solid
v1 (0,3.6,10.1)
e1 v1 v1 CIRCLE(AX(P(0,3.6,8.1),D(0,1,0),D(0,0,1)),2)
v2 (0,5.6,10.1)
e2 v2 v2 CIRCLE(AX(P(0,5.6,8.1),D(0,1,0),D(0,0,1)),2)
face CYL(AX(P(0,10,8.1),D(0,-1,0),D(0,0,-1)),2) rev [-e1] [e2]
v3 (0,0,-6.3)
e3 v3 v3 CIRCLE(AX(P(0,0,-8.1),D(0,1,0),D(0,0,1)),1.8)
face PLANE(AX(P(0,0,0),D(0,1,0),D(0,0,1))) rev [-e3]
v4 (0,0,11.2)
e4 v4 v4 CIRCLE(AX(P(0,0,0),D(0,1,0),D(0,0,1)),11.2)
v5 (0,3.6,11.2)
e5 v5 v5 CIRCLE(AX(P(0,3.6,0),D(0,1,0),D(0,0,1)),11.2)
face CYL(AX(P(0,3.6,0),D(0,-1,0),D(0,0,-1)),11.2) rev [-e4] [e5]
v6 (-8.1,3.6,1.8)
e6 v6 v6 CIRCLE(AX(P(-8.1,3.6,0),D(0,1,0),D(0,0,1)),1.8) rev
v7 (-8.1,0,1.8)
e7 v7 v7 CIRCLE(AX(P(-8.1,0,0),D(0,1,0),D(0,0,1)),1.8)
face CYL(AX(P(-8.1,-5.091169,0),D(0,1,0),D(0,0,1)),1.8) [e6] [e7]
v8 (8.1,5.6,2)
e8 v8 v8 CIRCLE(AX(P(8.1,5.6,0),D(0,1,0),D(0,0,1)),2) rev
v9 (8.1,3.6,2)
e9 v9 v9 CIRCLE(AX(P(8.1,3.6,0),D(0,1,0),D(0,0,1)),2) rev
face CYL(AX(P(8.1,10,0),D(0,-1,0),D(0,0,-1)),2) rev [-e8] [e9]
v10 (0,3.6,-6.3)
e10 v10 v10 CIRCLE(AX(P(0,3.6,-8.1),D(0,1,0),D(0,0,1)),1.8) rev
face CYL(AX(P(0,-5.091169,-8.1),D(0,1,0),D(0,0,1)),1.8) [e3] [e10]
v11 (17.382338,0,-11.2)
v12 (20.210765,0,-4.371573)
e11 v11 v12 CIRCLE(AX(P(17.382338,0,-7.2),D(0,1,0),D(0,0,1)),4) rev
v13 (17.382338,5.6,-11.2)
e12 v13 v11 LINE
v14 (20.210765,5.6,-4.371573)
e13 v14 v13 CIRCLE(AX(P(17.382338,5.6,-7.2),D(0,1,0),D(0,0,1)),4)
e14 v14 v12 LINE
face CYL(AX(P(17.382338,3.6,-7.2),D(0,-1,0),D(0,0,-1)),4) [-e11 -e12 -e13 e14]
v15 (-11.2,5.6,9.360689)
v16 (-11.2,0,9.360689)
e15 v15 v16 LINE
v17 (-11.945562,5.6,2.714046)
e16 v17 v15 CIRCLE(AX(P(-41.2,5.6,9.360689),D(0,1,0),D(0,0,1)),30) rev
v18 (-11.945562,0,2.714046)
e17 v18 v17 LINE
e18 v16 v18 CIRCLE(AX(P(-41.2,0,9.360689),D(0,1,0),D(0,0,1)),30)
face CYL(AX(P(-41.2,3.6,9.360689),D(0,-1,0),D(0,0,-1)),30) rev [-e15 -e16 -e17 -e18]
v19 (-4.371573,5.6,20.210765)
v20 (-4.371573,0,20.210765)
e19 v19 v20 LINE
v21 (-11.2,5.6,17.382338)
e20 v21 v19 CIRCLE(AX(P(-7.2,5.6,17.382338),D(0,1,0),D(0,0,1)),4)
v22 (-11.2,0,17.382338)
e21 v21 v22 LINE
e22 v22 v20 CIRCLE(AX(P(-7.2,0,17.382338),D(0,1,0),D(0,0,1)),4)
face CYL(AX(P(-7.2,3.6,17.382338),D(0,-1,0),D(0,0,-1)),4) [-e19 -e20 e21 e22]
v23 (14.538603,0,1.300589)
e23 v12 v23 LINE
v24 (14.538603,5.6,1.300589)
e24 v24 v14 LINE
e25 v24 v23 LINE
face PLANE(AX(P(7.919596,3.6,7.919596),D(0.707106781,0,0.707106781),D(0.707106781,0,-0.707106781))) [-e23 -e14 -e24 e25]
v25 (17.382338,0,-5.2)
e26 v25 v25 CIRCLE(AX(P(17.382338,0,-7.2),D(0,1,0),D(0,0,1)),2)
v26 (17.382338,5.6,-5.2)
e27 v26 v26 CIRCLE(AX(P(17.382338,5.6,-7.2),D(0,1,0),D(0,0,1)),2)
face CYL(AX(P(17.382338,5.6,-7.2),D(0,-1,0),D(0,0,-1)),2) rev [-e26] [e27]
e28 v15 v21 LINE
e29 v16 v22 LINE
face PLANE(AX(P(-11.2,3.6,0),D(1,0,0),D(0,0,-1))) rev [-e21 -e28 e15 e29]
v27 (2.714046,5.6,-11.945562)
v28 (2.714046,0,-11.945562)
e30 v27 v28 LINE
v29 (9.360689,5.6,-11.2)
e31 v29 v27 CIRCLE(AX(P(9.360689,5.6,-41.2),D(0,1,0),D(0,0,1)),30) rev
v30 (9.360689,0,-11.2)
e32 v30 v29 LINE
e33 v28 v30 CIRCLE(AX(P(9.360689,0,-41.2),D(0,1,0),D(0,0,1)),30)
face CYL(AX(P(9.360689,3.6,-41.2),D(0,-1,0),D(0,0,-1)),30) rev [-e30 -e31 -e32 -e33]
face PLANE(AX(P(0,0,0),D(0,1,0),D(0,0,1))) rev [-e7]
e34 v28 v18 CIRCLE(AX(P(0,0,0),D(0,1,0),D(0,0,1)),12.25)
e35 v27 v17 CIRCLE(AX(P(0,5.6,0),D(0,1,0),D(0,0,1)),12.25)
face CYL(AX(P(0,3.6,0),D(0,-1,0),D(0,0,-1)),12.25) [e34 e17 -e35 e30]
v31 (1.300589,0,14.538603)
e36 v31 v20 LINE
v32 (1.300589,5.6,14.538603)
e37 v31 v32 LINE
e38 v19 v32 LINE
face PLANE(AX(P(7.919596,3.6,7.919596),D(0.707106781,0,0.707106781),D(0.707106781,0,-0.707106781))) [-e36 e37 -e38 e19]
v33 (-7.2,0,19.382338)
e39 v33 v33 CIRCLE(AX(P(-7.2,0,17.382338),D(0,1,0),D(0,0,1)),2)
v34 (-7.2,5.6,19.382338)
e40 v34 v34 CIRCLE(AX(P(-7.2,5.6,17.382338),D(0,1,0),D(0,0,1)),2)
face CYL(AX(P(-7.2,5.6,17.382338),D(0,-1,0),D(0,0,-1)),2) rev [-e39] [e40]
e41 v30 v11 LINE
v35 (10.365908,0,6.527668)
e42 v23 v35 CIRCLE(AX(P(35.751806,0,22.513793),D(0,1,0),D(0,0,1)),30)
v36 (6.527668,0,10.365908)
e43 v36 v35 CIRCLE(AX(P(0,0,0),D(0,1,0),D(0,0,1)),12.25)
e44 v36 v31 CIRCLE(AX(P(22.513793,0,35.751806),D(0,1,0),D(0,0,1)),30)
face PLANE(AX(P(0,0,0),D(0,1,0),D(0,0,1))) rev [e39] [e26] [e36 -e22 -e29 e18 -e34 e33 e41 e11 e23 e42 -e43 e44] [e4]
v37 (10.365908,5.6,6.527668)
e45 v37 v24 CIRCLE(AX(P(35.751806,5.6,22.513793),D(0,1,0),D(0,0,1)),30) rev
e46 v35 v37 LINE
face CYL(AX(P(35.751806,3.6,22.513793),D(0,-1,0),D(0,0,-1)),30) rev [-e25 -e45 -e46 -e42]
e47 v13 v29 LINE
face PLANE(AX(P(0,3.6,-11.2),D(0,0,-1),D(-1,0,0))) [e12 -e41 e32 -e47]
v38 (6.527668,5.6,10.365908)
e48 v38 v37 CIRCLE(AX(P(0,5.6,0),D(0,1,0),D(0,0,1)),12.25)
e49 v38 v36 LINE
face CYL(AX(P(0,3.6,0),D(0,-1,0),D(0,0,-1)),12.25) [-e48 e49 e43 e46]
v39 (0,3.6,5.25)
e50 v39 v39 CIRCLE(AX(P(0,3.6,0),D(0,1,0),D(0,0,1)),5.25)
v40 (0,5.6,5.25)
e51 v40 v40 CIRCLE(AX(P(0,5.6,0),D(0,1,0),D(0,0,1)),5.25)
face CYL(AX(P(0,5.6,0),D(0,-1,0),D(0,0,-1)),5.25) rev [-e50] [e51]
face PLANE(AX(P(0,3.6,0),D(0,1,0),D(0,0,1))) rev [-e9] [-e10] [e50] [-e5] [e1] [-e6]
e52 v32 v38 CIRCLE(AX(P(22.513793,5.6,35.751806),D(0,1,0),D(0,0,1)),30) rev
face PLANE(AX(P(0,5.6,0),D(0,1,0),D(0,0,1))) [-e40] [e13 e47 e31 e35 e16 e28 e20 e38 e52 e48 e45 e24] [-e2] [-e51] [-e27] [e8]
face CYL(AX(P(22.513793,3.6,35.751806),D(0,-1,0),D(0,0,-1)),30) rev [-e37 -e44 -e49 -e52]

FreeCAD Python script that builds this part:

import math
import FreeCAD as App
import Part
import Sketcher

V = App.Vector
Q = App.Units.Quantity


def edges_at(feature, points):
    """Names of the edges that pass closest to the given points."""
    edges = feature.Shape.Edges
    near = lambda p: min(range(len(edges)), key=lambda i: edges[i].distToShape(Part.Vertex(*p))[0])
    return sorted({f"Edge{near(p) + 1}" for p in points})

doc = App.newDocument("Part")
params = doc.addObject("Spreadsheet::Sheet", "Params")
for row, (alias, value) in enumerate([
    ("sketch1_radius", "4 mm"),
    ("sketch1_radius2", "11.2 mm"),
    ("sketch1_radius3", "12.25 mm"),
    ("pad1_length", "3.6 mm"),
    ("sketch2_radius", "4 mm"),
    ("sketch2_diameter", "10.5 mm"),
    ("sketch2_radius2", "12.25 mm"),
    ("pad2_length", "2 mm"),
    ("sketch3_diameter", "4 mm"),
    ("fillet_radius", "30 mm"),
    ("sketch4_diameter", "3.6 mm"),
    ("pad3_length", "3.6 mm"),
    ("sketch5_diameter", "4 mm"),
    ("pocket2_length", "10 mm"),
], start=1):
    params.set(f"A{row}", alias)
    params.set(f"B{row}", "=" + value)
    params.setAlias(f"B{row}", alias)

body = doc.addObject("PartDesign::Body", "Body")

# Sketch on XZ plane
sketch1 = body.newObject("Sketcher::SketchObject", "Sketch")
sketch1.AttachmentSupport = (doc.getObject("XZ_Plane"), [""])
sketch1.MapMode = "FlatFace"
sketch1.addGeometry(Part.ArcOfCircle(Part.Circle(V(-7.2, 17.4, 0), V(0, 0, 1), 4), math.radians(45), math.radians(180)), False)
sketch1.addGeometry(Part.LineSegment(V(-4.4, 20.2, 0), V(4.4, 11.4, 0)), False)
sketch1.addGeometry(Part.ArcOfCircle(Part.Circle(V(0, 0, 0), V(0, 0, 1), 12.2), math.radians(21), math.radians(69)), False)
sketch1.addGeometry(Part.LineSegment(V(11.4, 4.4, 0), V(20.2, -4.4, 0)), False)
sketch1.addGeometry(Part.ArcOfCircle(Part.Circle(V(17.4, -7.2, 0), V(0, 0, 1), 4), math.radians(-90), math.radians(45)), False)
sketch1.addGeometry(Part.LineSegment(V(17.4, -11.2, 0), V(5, -11.2, 0)), False)
sketch1.addGeometry(Part.ArcOfCircle(Part.Circle(V(0, 0, 0), V(0, 0, 1), 12.2), math.radians(156), math.radians(294)), False)
sketch1.addGeometry(Part.LineSegment(V(-11.2, 5, 0), V(-11.2, 17.4, 0)), False)
sketch1.addGeometry(Part.ArcOfCircle(Part.Circle(V(0, 0, 0), V(0, 0, 1), 11.2), math.radians(-90), math.radians(0)), False)
sketch1.addGeometry(Part.ArcOfCircle(Part.Circle(V(0, 0, 0), V(0, 0, 1), 11.2), math.radians(0), math.radians(45)), False)
sketch1.addGeometry(Part.ArcOfCircle(Part.Circle(V(0, 0, 0), V(0, 0, 1), 11.2), math.radians(45), math.radians(180)), False)
sketch1.addGeometry(Part.ArcOfCircle(Part.Circle(V(0, 0, 0), V(0, 0, 1), 11.2), math.radians(-180), math.radians(-90)), False)
sketch1.addConstraint(Sketcher.Constraint("Tangent", 0, 1, 1, 1))
sketch1.addConstraint(Sketcher.Constraint("Coincident", 1, 2, 2, 2))
sketch1.addConstraint(Sketcher.Constraint("Coincident", 2, 1, 3, 1))
sketch1.addConstraint(Sketcher.Constraint("Tangent", 3, 2, 4, 2))
sketch1.addConstraint(Sketcher.Constraint("Tangent", 4, 1, 5, 1))
sketch1.addConstraint(Sketcher.Constraint("Coincident", 5, 2, 6, 2))
sketch1.addConstraint(Sketcher.Constraint("Coincident", 6, 1, 7, 1))
sketch1.addConstraint(Sketcher.Constraint("Tangent", 7, 2, 0, 2))
sketch1.addConstraint(Sketcher.Constraint("Tangent", 8, 2, 9, 1))
sketch1.addConstraint(Sketcher.Constraint("Tangent", 9, 2, 10, 1))
sketch1.addConstraint(Sketcher.Constraint("Tangent", 10, 2, 11, 1))
sketch1.addConstraint(Sketcher.Constraint("Tangent", 11, 2, 8, 1))
sketch1.addConstraint(Sketcher.Constraint("Horizontal", 5))
sketch1.addConstraint(Sketcher.Constraint("Vertical", 7))
sketch1.addConstraint(Sketcher.Constraint("Coincident", 2, 3, -1, 1))
sketch1.addConstraint(Sketcher.Constraint("Coincident", 6, 3, -1, 1))
sketch1.addConstraint(Sketcher.Constraint("Coincident", 8, 3, -1, 1))
sketch1.addConstraint(Sketcher.Constraint("Equal", 0, 4))
sketch1.addConstraint(Sketcher.Constraint("Equal", 2, 6))
sketch1.addConstraint(Sketcher.Constraint("Equal", 8, 9))
sketch1.addConstraint(Sketcher.Constraint("PointOnObject", 8, 2, -1))
sketch1.addConstraint(Sketcher.Constraint("PointOnObject", 10, 2, -1))
sketch1.addConstraint(Sketcher.Constraint("PointOnObject", 11, 2, -2))
sketch1.addConstraint(Sketcher.Constraint("Parallel", 1, 3))
sketch1.addConstraint(Sketcher.Constraint("Horizontal", 5, 2, 11, 2))
sketch1.addConstraint(Sketcher.Constraint("Vertical", 7, 2, 10, 2))
sketch1.addConstraint(Sketcher.Constraint("Equal", 5, 7))
sketch1.addConstraint(Sketcher.Constraint("Equal", 1, 3))
sketch1.addConstraint(Sketcher.Constraint("Radius", 0, Q("4 mm")))
sketch1.addConstraint(Sketcher.Constraint("Radius", 8, Q("11.2 mm")))
sketch1.addConstraint(Sketcher.Constraint("Radius", 2, Q("12.25 mm")))
sketch1.addConstraint(Sketcher.Constraint("DistanceX", 5, 2, 5, 1, Q("12.420231 mm")))
sketch1.addConstraint(Sketcher.Constraint("DistanceX", 1, 2, 9, 2, Q("3.508739 mm")))
sketch1.setExpression("Constraints[28]", "Params.sketch1_radius")
sketch1.setExpression("Constraints[29]", "Params.sketch1_radius2")
sketch1.setExpression("Constraints[30]", "Params.sketch1_radius3")
pad1 = body.newObject("PartDesign::Pad", "Pad")
pad1.Profile = sketch1
pad1.setExpression("Length", "Params.pad1_length")
pad1.Reversed = True

# Sketch on XZ plane
sketch2 = body.newObject("Sketcher::SketchObject", "Sketch001")
sketch2.AttachmentSupport = (doc.getObject("XZ_Plane"), [""])
sketch2.MapMode = "FlatFace"
sketch2.AttachmentOffset = App.Placement(V(0, 0, -3.6), App.Rotation())
sketch2.addGeometry(Part.LineSegment(V(-4.4, 20.2, 0), V(4.4, 11.4, 0)), False)
sketch2.addGeometry(Part.ArcOfCircle(Part.Circle(V(0, 0, 0), V(0, 0, 1), 12.2), math.radians(21), math.radians(69)), False)
sketch2.addGeometry(Part.LineSegment(V(11.4, 4.4, 0), V(20.2, -4.4, 0)), False)
sketch2.addGeometry(Part.ArcOfCircle(Part.Circle(V(17.4, -7.2, 0), V(0, 0, 1), 4), math.radians(-90), math.radians(45)), False)
sketch2.addGeometry(Part.LineSegment(V(17.4, -11.2, 0), V(5, -11.2, 0)), False)
sketch2.addGeometry(Part.ArcOfCircle(Part.Circle(V(0, 0, 0), V(0, 0, 1), 12.2), math.radians(156), math.radians(294)), False)
sketch2.addGeometry(Part.LineSegment(V(-11.2, 5, 0), V(-11.2, 17.4, 0)), False)
sketch2.addGeometry(Part.ArcOfCircle(Part.Circle(V(-7.2, 17.4, 0), V(0, 0, 1), 4), math.radians(45), math.radians(180)), False)
sketch2.addGeometry(Part.Circle(V(0, 0, 0), V(0, 0, 1), 5.2), False)
sketch2.addConstraint(Sketcher.Constraint("Coincident", 0, 2, 1, 2))
sketch2.addConstraint(Sketcher.Constraint("Coincident", 1, 1, 2, 1))
sketch2.addConstraint(Sketcher.Constraint("Tangent", 2, 2, 3, 2))
sketch2.addConstraint(Sketcher.Constraint("Tangent", 3, 1, 4, 1))
sketch2.addConstraint(Sketcher.Constraint("Coincident", 4, 2, 5, 2))
sketch2.addConstraint(Sketcher.Constraint("Coincident", 5, 1, 6, 1))
sketch2.addConstraint(Sketcher.Constraint("Tangent", 6, 2, 7, 2))
sketch2.addConstraint(Sketcher.Constraint("Tangent", 7, 1, 0, 1))
sketch2.addConstraint(Sketcher.Constraint("Horizontal", 4))
sketch2.addConstraint(Sketcher.Constraint("Vertical", 6))
sketch2.addConstraint(Sketcher.Constraint("Coincident", 1, 3, -1, 1))
sketch2.addConstraint(Sketcher.Constraint("Coincident", 5, 3, -1, 1))
sketch2.addConstraint(Sketcher.Constraint("Coincident", 8, 3, -1, 1))
sketch2.addConstraint(Sketcher.Constraint("Equal", 1, 5))
sketch2.addConstraint(Sketcher.Constraint("Equal", 3, 7))
sketch2.addConstraint(Sketcher.Constraint("Parallel", 0, 2))
sketch2.addConstraint(Sketcher.Constraint("Equal", 4, 6))
sketch2.addConstraint(Sketcher.Constraint("Equal", 0, 2))
sketch2.addConstraint(Sketcher.Constraint("Radius", 3, Q("4 mm")))
sketch2.addConstraint(Sketcher.Constraint("Diameter", 8, Q("10.5 mm")))
sketch2.addConstraint(Sketcher.Constraint("Angle", 0, Q("-45 deg")))
sketch2.addConstraint(Sketcher.Constraint("Radius", 1, Q("12.25 mm")))
sketch2.addConstraint(Sketcher.Constraint("DistanceY", 3, 3, -1, 1, Q("7.2 mm")))
sketch2.addConstraint(Sketcher.Constraint("DistanceX", 4, 2, 4, 1, Q("12.420231 mm")))
sketch2.setExpression("Constraints[18]", "Params.sketch2_radius")
sketch2.setExpression("Constraints[19]", "Params.sketch2_diameter")
sketch2.setExpression("Constraints[21]", "Params.sketch2_radius2")
pad2 = body.newObject("PartDesign::Pad", "Pad001")
pad2.Profile = sketch2
pad2.setExpression("Length", "Params.pad2_length")
pad2.Reversed = True

# Sketch on XZ plane
sketch3 = body.newObject("Sketcher::SketchObject", "Sketch002")
sketch3.AttachmentSupport = (doc.getObject("XZ_Plane"), [""])
sketch3.MapMode = "FlatFace"
sketch3.addGeometry(Part.Circle(V(-7.2, 17.4, 0), V(0, 0, 1), 2), False)
sketch3.addGeometry(Part.Circle(V(17.4, -7.2, 0), V(0, 0, 1), 2), False)
sketch3.addConstraint(Sketcher.Constraint("Equal", 0, 1))
sketch3.addConstraint(Sketcher.Constraint("Diameter", 0, Q("4 mm")))
sketch3.addConstraint(Sketcher.Constraint("DistanceX", 0, 3, -1, 1, Q("7.2 mm")))
sketch3.addConstraint(Sketcher.Constraint("DistanceY", 1, 3, -1, 1, Q("7.2 mm")))
sketch3.addConstraint(Sketcher.Constraint("DistanceY", -1, 1, 0, 3, Q("17.382338 mm")))
sketch3.addConstraint(Sketcher.Constraint("DistanceX", -1, 1, 1, 3, Q("17.382338 mm")))
sketch3.setExpression("Constraints[1]", "Params.sketch3_diameter")
pocket1 = body.newObject("PartDesign::Pocket", "Pocket")
pocket1.Profile = sketch3
pocket1.Type = "ThroughAll"
doc.recompute()

fillet = body.newObject("PartDesign::Fillet", "Fillet")
fillet.Base = (pocket1, edges_at(pocket1, [
    (4.411, 2.8, 11.428),
    (-11.2, 2.8, 4.962),
    (4.962, 2.8, -11.2),
    (11.428, 2.8, 4.411),
]))
fillet.setExpression("Radius", "Params.fillet_radius")

# Sketch on XZ plane
sketch4 = body.newObject("Sketcher::SketchObject", "Sketch003")
sketch4.AttachmentSupport = (doc.getObject("XZ_Plane"), [""])
sketch4.MapMode = "FlatFace"
sketch4.AttachmentOffset = App.Placement(V(0, 0, -3.6), App.Rotation())
sketch4.addGeometry(Part.Circle(V(-8.1, 0, 0), V(0, 0, 1), 1.8), False)
sketch4.addGeometry(Part.Circle(V(8.1, 0, 0), V(0, 0, 1), 1.8), False)
sketch4.addGeometry(Part.Circle(V(0, -8.1, 0), V(0, 0, 1), 1.8), False)
sketch4.addGeometry(Part.Circle(V(0, 8.1, 0), V(0, 0, 1), 1.8), False)
sketch4.addConstraint(Sketcher.Constraint("Equal", 0, 1))
sketch4.addConstraint(Sketcher.Constraint("Equal", 1, 2))
sketch4.addConstraint(Sketcher.Constraint("Equal", 2, 3))
sketch4.addConstraint(Sketcher.Constraint("Symmetric", 0, 3, 1, 3, -1, 1))
sketch4.addConstraint(Sketcher.Constraint("Symmetric", 2, 3, 3, 3, -1, 1))
sketch4.addConstraint(Sketcher.Constraint("PointOnObject", 0, 3, -1))
sketch4.addConstraint(Sketcher.Constraint("PointOnObject", 2, 3, -2))
sketch4.addConstraint(Sketcher.Constraint("Diameter", 0, Q("3.6 mm")))
sketch4.addConstraint(Sketcher.Constraint("DistanceX", 0, 3, -1, 1, Q("8.1 mm")))
sketch4.addConstraint(Sketcher.Constraint("DistanceY", 2, 3, -1, 1, Q("8.1 mm")))
sketch4.setExpression("Constraints[7]", "Params.sketch4_diameter")
pad3 = body.newObject("PartDesign::Pad", "Pad002")
pad3.Profile = sketch4
pad3.setExpression("Length", "Params.pad3_length")

# Sketch on XZ plane
sketch5 = body.newObject("Sketcher::SketchObject", "Sketch004")
sketch5.AttachmentSupport = (doc.getObject("XZ_Plane"), [""])
sketch5.MapMode = "FlatFace"
sketch5.addGeometry(Part.Circle(V(0, 8.1, 0), V(0, 0, 1), 2), False)
sketch5.addConstraint(Sketcher.Constraint("PointOnObject", 0, 3, -2))
sketch5.addConstraint(Sketcher.Constraint("Diameter", 0, Q("4 mm")))
sketch5.addConstraint(Sketcher.Constraint("DistanceY", -1, 1, 0, 3, Q("8.1 mm")))
sketch5.setExpression("Constraints[1]", "Params.sketch5_diameter")
pocket2 = body.newObject("PartDesign::Pocket", "Pocket001")
pocket2.Profile = sketch5
pocket2.setExpression("Length", "Params.pocket2_length")
doc.recompute()

datumplane = body.newObject("PartDesign::Plane", "DatumPlane")
datumplane.Placement = App.Placement(V(0, 0, 0), App.Rotation(V(-0.707106781, 0, -0.707106781), V(0, -1, 0), V(-0.707106781, 0, 0.707106781), "ZXY"))
mirrored = body.newObject("PartDesign::Mirrored", "Mirrored")
mirrored.Originals = [pocket2]
mirrored.MirrorPlane = (datumplane, [""])
body.Tip = mirrored

doc.recompute()
